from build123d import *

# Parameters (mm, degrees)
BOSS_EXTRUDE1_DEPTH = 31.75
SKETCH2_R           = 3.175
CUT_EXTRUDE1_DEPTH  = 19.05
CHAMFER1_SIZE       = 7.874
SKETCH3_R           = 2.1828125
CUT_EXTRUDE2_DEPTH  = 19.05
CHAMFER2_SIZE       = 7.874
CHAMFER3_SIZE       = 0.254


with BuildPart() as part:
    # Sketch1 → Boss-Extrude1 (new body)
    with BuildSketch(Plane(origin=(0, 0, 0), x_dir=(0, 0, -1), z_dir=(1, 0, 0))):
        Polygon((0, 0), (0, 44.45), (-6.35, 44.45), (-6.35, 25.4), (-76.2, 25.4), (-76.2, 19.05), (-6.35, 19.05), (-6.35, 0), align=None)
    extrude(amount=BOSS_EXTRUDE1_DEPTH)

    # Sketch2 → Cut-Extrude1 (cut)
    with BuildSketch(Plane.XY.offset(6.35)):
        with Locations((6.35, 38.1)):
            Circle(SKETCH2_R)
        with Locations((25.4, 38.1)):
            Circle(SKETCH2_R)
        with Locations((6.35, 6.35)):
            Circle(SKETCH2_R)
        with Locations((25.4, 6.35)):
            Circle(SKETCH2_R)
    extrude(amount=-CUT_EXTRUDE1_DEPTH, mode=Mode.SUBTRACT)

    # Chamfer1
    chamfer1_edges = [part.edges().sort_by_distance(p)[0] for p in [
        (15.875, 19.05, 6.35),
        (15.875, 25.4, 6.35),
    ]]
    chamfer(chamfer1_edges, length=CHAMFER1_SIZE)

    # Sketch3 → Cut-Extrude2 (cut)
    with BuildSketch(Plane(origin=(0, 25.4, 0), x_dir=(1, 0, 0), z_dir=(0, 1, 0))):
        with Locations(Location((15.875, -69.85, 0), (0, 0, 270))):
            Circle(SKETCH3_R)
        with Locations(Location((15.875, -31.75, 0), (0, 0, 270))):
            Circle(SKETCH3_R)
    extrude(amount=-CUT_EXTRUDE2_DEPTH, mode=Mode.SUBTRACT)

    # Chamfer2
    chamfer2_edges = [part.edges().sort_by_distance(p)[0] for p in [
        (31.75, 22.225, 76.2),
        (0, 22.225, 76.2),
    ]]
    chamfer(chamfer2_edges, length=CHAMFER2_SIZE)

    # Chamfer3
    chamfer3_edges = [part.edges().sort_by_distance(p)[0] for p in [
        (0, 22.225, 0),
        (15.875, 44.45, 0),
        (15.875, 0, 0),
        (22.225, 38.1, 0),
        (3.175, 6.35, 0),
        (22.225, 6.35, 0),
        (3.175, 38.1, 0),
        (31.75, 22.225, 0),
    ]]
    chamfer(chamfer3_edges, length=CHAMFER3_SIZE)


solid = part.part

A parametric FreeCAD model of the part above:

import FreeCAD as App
import Part
import Sketcher

V = App.Vector
Q = App.Units.Quantity


def edges_at(feature, points):
    """Names of the edges that pass closest to the given points."""
    edges = feature.Shape.Edges
    near = lambda p: min(range(len(edges)), key=lambda i: edges[i].distToShape(Part.Vertex(*p))[0])
    return sorted({f"Edge{near(p) + 1}" for p in points})


def add_polygon(sketch, points):
    """Adds a closed chain of lines whose ends are joined by coincident constraints."""
    first, n = sketch.GeometryCount, len(points)
    for a, b in zip(points, points[1:] + points[:1]):
        sketch.addGeometry(Part.LineSegment(App.Vector(*a, 0), App.Vector(*b, 0)), False)
    for i in range(n):
        sketch.addConstraint(Sketcher.Constraint("Coincident", first + i, 2, first + (i + 1) % n, 1))

doc = App.newDocument("Part")
body = doc.addObject("PartDesign::Body", "Body")

# Sketch on YZ plane
sketch1 = body.newObject("Sketcher::SketchObject", "Sketch")
sketch1.AttachmentSupport = (doc.getObject("YZ_Plane"), [""])
sketch1.MapMode = "FlatFace"
add_polygon(sketch1, [(0, 0), (44, 0), (44, 6), (25, 6), (25, 76), (19, 76), (19, 6), (0, 6)])  # lines 0-7
sketch1.addConstraint([
    Sketcher.Constraint("Horizontal", 0),
    Sketcher.Constraint("Vertical", 1),
    Sketcher.Constraint("Horizontal", 2),
    Sketcher.Constraint("Vertical", 3),
    Sketcher.Constraint("Horizontal", 4),
    Sketcher.Constraint("Vertical", 5),
    Sketcher.Constraint("Horizontal", 6),
    Sketcher.Constraint("Vertical", 7),
    Sketcher.Constraint("Coincident", 7, 2, -1, 1),
    Sketcher.Constraint("Horizontal", 2, 2, 5, 2),
    Sketcher.Constraint("Equal", 2, 6),
    Sketcher.Constraint("Equal", 4, 1),
    Sketcher.Constraint("DistanceX", -1, 1, 2, 2, Q("1 in")),
    Sketcher.Constraint("DistanceY", -1, 1, 3, 2, Q("3 in")),
    Sketcher.Constraint("DistanceX", 0, 1, 0, 2, Q("1.75 in")),
])
pad1 = body.newObject("PartDesign::Pad", "Pad")
pad1.Profile = sketch1
pad1.Length = Q("1.25 in")

# Sketch on XY plane
sketch2 = body.newObject("Sketcher::SketchObject", "Sketch001")
sketch2.AttachmentSupport = (doc.getObject("XY_Plane"), [""])
sketch2.MapMode = "FlatFace"
sketch2.AttachmentOffset = App.Placement(V(0, 0, 0.25 * 25.4), App.Rotation())
sketch2.addGeometry([
    Part.Circle(V(6.3, 38.1, 0), V(0, 0, 1), 3.2),
    Part.Circle(V(25.4, 38.1, 0), V(0, 0, 1), 3.2),
    Part.Circle(V(6.3, 6.3, 0), V(0, 0, 1), 3.2),
    Part.Circle(V(25.4, 6.3, 0), V(0, 0, 1), 3.2),
], False)
sketch2.addConstraint([
    Sketcher.Constraint("Equal", 0, 1),
    Sketcher.Constraint("Equal", 1, 2),
    Sketcher.Constraint("Equal", 2, 3),
    Sketcher.Constraint("Horizontal", 0, 3, 1, 3),
    Sketcher.Constraint("Horizontal", 2, 3, 3, 3),
    Sketcher.Constraint("Vertical", 0, 3, 2, 3),
    Sketcher.Constraint("Vertical", 1, 3, 3, 3),
    Sketcher.Constraint("Diameter", 0, Q("0.25 in")),
    Sketcher.Constraint("DistanceX", -1, 1, 1, 3, Q("1 in")),
    Sketcher.Constraint("DistanceY", -1, 1, 0, 3, Q("1.5 in")),
    Sketcher.Constraint("DistanceX", -1, 1, 0, 3, Q("0.25 in")),
    Sketcher.Constraint("DistanceY", -1, 1, 2, 3, Q("0.25 in")),
])
pocket1 = body.newObject("PartDesign::Pocket", "Pocket")
pocket1.Profile = sketch2
pocket1.Length = Q("0.75 in")
doc.recompute()

chamfer = body.newObject("PartDesign::Chamfer", "Chamfer")
chamfer.Base = (pocket1, edges_at(pocket1, [(15.875, 19.05, 6.35), (15.875, 25.4, 6.35)]))
chamfer.Size = Q("0.31 in")

# Sketch on XZ plane
sketch3 = body.newObject("Sketcher::SketchObject", "Sketch002")
sketch3.AttachmentSupport = (doc.getObject("XZ_Plane"), [""])
sketch3.MapMode = "FlatFace"
sketch3.AttachmentOffset = App.Placement(V(0, 0, -1 * 25.4), App.Rotation())
sketch3.addGeometry([
    Part.Circle(V(15.9, 69.8, 0), V(0, 0, 1), 2.2),
    Part.Circle(V(15.9, 31.8, 0), V(0, 0, 1), 2.2),
], False)
sketch3.addConstraint([
    Sketcher.Constraint("Equal", 0, 1),
    Sketcher.Constraint("Vertical", 0, 3, 1, 3),
    Sketcher.Constraint("Diameter", 0, Q("0.171875 in")),
    Sketcher.Constraint("DistanceY", 1, 3, 0, 3, Q("1.5 in")),
    Sketcher.Constraint("DistanceY", -1, 1, 0, 3, Q("2.75 in")),
    Sketcher.Constraint("DistanceX", -1, 1, 0, 3, Q("0.625 in")),
])
pocket2 = body.newObject("PartDesign::Pocket", "Pocket001")
pocket2.Profile = sketch3
pocket2.Length = Q("0.75 in")
pocket2.Reversed = True
doc.recompute()

chamfer2 = body.newObject("PartDesign::Chamfer", "Chamfer001")
chamfer2.Base = (pocket2, edges_at(pocket2, [(31.75, 22.225, 76.2), (0, 22.225, 76.2)]))
chamfer2.Size = Q("0.31 in")
doc.recompute()

chamfer3 = body.newObject("PartDesign::Chamfer", "Chamfer002")
chamfer3.Base = (chamfer2, edges_at(chamfer2, [
    (0, 22.225, 0),
    (15.875, 44.45, 0),
    (15.875, 0, 0),
    (22.225, 38.1, 0),
    (3.175, 6.35, 0),
    (22.225, 6.35, 0),
    (3.175, 38.1, 0),
    (31.75, 22.225, 0),
]))
chamfer3.Size = Q("0.01 in")

doc.recompute()
